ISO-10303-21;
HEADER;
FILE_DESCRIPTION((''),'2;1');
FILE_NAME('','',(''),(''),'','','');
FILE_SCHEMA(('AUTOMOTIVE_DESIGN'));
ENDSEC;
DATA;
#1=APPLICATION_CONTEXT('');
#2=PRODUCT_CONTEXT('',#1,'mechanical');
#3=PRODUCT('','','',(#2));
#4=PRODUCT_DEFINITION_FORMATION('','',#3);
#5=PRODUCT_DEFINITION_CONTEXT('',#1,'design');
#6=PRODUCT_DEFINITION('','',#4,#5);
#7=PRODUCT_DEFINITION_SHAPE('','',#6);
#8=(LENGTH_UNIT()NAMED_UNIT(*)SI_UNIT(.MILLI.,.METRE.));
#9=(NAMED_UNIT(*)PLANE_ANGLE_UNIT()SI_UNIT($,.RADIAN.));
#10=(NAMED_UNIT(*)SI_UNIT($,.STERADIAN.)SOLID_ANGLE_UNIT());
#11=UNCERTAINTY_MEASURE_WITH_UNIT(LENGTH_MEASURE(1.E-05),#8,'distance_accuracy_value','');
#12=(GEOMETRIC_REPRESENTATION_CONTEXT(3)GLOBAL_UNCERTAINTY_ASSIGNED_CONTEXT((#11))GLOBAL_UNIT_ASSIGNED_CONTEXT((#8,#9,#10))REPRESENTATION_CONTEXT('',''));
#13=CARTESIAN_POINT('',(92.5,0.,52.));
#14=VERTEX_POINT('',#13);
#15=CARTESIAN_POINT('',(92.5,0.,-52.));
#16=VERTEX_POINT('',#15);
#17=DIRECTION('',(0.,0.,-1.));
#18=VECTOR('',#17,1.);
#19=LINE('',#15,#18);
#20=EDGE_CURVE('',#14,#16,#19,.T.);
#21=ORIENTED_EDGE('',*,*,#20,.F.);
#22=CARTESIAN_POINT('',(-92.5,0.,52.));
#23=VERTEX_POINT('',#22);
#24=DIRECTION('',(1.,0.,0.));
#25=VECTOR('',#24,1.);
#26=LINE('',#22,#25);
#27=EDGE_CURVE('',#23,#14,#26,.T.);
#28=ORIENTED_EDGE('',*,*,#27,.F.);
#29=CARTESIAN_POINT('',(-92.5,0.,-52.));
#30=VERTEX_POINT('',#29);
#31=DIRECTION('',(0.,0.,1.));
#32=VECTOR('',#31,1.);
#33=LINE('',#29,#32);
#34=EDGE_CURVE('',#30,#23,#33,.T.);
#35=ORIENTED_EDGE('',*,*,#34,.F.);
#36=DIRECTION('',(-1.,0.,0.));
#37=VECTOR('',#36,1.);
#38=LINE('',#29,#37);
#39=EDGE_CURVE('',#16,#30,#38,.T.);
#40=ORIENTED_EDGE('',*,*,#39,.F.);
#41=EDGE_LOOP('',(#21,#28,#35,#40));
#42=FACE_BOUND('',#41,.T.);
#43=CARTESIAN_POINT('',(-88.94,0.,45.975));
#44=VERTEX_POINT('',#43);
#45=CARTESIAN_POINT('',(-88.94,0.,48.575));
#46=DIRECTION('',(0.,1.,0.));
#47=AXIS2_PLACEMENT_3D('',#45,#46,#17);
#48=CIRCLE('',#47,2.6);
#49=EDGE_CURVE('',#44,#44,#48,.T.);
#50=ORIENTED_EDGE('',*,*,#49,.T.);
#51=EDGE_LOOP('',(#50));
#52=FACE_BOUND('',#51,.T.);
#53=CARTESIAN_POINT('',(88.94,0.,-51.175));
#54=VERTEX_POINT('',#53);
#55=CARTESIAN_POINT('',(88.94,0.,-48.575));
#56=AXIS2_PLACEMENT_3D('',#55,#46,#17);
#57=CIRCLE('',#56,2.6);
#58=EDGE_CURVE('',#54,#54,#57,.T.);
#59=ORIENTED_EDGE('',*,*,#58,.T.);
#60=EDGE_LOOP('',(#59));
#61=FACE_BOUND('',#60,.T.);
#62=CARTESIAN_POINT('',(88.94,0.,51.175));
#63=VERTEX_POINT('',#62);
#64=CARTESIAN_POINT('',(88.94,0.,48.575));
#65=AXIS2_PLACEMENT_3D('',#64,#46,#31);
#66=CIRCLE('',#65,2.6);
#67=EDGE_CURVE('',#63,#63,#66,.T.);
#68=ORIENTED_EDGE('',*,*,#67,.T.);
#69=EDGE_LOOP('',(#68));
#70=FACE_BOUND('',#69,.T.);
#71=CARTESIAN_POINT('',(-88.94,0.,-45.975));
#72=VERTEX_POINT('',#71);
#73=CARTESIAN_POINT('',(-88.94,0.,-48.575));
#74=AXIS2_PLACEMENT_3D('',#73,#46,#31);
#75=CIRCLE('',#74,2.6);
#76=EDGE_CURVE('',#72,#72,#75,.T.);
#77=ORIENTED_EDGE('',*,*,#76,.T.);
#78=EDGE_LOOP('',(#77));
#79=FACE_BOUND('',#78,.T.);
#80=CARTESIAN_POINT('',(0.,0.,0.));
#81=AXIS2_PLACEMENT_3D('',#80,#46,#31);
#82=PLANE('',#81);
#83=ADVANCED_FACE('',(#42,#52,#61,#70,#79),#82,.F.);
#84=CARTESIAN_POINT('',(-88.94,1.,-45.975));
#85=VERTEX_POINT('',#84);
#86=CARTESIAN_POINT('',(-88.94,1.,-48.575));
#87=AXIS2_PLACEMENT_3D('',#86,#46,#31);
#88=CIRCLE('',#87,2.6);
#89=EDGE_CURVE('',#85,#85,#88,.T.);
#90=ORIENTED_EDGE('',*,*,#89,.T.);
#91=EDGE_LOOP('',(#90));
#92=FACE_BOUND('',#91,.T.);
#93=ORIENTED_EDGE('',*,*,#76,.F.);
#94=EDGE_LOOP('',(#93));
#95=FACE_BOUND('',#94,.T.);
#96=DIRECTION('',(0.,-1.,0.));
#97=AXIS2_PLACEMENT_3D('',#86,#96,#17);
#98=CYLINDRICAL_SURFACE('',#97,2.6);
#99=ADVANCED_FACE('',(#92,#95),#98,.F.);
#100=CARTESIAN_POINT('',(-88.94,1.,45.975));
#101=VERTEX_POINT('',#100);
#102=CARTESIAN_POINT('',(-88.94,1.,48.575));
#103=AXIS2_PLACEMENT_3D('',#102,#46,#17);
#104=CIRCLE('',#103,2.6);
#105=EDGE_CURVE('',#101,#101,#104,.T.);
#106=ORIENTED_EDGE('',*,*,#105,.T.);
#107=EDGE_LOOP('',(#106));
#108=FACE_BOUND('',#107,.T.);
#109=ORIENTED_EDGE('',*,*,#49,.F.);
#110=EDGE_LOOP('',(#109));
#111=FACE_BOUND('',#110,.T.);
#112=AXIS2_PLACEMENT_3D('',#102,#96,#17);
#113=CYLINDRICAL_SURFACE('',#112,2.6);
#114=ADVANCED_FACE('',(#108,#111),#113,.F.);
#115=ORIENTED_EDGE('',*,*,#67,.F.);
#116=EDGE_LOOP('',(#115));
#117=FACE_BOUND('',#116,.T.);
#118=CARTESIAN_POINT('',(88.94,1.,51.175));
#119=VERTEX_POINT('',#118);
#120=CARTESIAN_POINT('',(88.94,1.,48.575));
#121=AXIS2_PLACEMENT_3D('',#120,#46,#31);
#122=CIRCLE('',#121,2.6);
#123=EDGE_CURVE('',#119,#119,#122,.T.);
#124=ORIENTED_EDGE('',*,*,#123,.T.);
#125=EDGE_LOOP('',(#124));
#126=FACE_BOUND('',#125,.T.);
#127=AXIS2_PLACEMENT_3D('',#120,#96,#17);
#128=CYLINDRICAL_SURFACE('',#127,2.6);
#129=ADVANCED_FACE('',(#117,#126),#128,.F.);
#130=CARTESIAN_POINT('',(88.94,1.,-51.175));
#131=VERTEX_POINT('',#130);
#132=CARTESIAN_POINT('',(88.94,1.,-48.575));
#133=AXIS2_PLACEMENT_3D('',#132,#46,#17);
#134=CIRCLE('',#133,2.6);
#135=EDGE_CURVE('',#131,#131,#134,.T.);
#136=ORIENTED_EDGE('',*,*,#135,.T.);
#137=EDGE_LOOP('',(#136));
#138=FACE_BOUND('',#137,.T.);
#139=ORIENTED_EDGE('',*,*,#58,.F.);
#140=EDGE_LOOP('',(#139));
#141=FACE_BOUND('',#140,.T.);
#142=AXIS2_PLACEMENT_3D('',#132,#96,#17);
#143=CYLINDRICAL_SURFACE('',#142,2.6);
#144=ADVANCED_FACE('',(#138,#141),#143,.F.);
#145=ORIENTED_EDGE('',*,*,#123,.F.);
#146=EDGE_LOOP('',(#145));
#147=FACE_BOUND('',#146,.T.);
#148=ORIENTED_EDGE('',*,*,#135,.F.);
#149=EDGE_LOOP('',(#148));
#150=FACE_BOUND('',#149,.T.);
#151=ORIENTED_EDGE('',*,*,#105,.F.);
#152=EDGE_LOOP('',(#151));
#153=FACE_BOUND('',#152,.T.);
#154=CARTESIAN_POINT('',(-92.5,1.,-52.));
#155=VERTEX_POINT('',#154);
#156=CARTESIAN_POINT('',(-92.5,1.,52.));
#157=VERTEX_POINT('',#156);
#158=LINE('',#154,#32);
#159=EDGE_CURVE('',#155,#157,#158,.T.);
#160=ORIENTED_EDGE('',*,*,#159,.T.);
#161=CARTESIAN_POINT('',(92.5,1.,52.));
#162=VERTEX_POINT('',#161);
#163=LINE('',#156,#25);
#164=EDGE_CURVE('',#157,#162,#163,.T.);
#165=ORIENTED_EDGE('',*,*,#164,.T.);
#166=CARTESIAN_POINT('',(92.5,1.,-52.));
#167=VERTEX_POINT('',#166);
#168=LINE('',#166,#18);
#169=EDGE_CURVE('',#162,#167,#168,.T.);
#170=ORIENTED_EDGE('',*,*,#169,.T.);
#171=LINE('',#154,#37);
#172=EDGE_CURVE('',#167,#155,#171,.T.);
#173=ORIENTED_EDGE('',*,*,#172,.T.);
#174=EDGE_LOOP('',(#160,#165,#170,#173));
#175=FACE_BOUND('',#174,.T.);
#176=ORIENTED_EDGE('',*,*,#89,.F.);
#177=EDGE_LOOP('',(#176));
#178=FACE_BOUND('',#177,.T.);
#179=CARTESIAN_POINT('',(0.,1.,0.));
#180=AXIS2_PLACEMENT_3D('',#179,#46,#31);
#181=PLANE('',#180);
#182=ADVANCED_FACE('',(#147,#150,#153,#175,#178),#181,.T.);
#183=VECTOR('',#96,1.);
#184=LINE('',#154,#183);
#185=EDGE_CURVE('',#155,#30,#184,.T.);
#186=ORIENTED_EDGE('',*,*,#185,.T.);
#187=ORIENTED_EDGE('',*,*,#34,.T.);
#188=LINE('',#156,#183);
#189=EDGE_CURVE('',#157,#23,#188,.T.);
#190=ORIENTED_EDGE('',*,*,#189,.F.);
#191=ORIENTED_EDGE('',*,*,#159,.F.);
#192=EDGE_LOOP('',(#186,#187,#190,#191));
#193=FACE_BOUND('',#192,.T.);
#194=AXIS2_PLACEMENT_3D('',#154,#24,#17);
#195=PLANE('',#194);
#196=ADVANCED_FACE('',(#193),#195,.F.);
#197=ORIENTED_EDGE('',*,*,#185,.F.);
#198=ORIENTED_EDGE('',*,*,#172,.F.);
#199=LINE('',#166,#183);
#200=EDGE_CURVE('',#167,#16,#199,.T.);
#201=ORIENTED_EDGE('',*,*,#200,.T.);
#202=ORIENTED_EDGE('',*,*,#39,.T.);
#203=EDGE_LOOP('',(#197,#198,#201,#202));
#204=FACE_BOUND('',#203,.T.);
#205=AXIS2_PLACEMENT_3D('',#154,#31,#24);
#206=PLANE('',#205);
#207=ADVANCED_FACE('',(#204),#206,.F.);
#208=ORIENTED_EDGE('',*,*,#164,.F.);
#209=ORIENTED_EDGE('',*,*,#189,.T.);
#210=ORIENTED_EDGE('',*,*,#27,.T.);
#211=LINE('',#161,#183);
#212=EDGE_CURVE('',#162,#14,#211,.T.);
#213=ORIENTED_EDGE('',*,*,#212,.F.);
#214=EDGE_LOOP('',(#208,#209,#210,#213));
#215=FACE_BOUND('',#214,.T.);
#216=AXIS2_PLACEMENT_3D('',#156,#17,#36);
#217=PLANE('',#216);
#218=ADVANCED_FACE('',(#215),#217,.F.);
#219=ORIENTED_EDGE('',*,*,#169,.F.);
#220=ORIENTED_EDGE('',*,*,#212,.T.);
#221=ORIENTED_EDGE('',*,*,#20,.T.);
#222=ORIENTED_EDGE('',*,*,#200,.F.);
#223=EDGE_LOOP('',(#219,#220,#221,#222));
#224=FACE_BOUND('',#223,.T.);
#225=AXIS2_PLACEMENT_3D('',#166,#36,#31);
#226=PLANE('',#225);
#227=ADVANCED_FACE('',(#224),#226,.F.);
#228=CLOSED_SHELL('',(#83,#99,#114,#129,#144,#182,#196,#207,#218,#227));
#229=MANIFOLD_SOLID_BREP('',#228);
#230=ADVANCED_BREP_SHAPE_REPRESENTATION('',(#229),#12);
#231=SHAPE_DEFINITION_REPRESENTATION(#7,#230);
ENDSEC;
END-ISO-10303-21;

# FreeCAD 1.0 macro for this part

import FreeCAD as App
import Part
import Sketcher

V = App.Vector

doc = App.newDocument("Part")
body = doc.addObject("PartDesign::Body", "Body")

sketch1 = body.newObject("Sketcher::SketchObject", "Sketch")
sketch1.AttachmentSupport = (doc.getObject("XZ_Plane"), [""])
sketch1.MapMode = "FlatFace"
sketch1.addGeometry([
    Part.LineSegment(V(-92.5, -52, 0), V(-92.5, 52, 0)),
    Part.LineSegment(V(-92.5, 52, 0), V(92.5, 52, 0)),
    Part.LineSegment(V(92.5, 52, 0), V(92.5, -52, 0)),
    Part.LineSegment(V(92.5, -52, 0), V(-92.5, -52, 0)),
    Part.Circle(V(-88.9, 48.6, 0), V(0, 0, 1), 2.6),
    Part.Circle(V(88.9, 48.6, 0), V(0, 0, 1), 2.6),
    Part.Circle(V(-88.9, -48.6, 0), V(0, 0, 1), 2.6),
    Part.Circle(V(88.9, -48.6, 0), V(0, 0, 1), 2.6),
], False)
sketch1.addConstraint([
    Sketcher.Constraint("Coincident", 0, 2, 1, 1),
    Sketcher.Constraint("Coincident", 1, 2, 2, 1),
    Sketcher.Constraint("Coincident", 2, 2, 3, 1),
    Sketcher.Constraint("Coincident", 3, 2, 0, 1),
    Sketcher.Constraint("Vertical", 0),
    Sketcher.Constraint("Horizontal", 1),
    Sketcher.Constraint("Vertical", 2),
    Sketcher.Constraint("Horizontal", 3),
    Sketcher.Constraint("Equal", 4, 5),
    Sketcher.Constraint("Equal", 5, 6),
    Sketcher.Constraint("Equal", 6, 7),
    Sketcher.Constraint("Symmetric", 5, 3, 6, 3, -1, 1),
    Sketcher.Constraint("Symmetric", 4, 3, 7, 3, -1, 1),
    Sketcher.Constraint("Symmetric", 0, 2, 2, 2, -1, 1),
    Sketcher.Constraint("Symmetric", 4, 3, 5, 3, -2),
    Sketcher.Constraint("Diameter", 4, 5.2),
    Sketcher.Constraint("DistanceX", 1, 1, 1, 2, 185.0),
    Sketcher.Constraint("DistanceY", 0, 1, 0, 2, 104.0),
    Sketcher.Constraint("DistanceX", 4, 3, -1, 1, 88.94),
    Sketcher.Constraint("DistanceY", 6, 3, 4, 3, 97.15),
])
pad1 = body.newObject("PartDesign::Pad", "Pad")
pad1.Profile = sketch1
pad1.Length = 1
pad1.Reversed = True

doc.recompute()
